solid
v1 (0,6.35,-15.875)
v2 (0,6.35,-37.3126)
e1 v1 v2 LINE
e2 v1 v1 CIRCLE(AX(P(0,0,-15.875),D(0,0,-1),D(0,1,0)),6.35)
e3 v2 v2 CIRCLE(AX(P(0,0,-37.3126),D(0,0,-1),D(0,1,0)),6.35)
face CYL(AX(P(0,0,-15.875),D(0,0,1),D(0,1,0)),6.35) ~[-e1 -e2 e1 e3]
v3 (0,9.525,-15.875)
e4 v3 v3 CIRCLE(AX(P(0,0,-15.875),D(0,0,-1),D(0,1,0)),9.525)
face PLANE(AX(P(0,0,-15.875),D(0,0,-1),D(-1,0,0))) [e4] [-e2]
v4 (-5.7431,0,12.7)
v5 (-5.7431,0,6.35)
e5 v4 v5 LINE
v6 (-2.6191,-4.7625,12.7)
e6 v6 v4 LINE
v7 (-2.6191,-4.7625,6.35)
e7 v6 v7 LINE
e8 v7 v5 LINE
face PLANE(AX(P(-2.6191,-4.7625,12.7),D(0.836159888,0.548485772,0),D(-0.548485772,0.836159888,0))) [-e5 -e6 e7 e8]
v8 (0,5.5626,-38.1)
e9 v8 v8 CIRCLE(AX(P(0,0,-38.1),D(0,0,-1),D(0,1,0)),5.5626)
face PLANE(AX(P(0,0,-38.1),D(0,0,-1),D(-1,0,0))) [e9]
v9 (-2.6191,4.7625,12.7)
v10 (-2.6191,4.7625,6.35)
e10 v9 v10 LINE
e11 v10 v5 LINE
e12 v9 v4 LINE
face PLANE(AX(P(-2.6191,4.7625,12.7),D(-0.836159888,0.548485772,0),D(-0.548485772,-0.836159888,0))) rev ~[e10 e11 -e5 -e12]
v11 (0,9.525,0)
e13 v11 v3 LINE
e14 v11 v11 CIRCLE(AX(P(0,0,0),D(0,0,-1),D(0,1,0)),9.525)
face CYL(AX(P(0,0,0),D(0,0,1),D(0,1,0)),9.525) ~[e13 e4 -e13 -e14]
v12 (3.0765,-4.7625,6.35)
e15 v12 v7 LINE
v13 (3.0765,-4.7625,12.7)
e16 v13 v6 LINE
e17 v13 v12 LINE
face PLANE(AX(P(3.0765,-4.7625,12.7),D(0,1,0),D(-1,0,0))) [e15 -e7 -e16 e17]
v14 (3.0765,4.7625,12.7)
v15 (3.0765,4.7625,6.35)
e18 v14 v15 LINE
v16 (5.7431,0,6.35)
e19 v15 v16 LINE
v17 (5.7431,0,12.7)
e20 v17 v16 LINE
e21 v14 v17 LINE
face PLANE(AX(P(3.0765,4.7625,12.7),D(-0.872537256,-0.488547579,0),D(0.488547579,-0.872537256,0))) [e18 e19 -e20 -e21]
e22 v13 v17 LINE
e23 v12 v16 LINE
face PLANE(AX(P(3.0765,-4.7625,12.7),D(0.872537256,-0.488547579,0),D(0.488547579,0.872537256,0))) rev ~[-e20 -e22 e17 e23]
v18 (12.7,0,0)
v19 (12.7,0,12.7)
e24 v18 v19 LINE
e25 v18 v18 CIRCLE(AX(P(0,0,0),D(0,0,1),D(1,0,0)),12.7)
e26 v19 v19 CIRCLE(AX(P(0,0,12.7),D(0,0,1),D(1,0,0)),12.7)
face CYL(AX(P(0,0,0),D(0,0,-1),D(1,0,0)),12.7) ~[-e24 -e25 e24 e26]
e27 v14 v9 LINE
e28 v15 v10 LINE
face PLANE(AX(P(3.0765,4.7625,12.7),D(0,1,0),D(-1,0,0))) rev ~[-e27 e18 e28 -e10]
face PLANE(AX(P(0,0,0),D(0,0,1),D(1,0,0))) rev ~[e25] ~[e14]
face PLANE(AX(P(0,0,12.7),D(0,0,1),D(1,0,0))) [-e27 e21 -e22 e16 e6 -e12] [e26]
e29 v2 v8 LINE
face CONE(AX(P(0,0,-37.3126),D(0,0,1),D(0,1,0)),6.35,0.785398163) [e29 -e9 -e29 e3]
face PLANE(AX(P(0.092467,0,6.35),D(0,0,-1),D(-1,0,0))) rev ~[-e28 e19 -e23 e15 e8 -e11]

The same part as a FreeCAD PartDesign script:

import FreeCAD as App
import Part
import Sketcher
from FreeCAD import Vector
Q = App.Units.Quantity


def edges_at(feature, points):
    """Names of the edges that pass closest to the given points."""
    edges = feature.Shape.Edges
    near = lambda p: min(range(len(edges)), key=lambda i: edges[i].distToShape(Part.Vertex(*p))[0])
    return sorted({f"Edge{near(p) + 1}" for p in points})

doc = App.newDocument("Part")
params = doc.addObject("Spreadsheet::Sheet", "Params")
for row, (alias, value) in enumerate([
    ("sketch1_diameter", "1 in"),
    ("pad1_length", "0.5 in"),
    ("sketch2_diameter", "0.75 in"),
    ("pad2_length", "0.625 in"),
    ("sketch3_diameter", "0.5 in"),
    ("pad3_length", "0.875 in"),
    ("pocket1_length", "0.25 in"),
    ("chamfer_size", "0.031 in"),
], start=1):
    params.set(f"A{row}", alias)
    params.set(f"B{row}", "=" + value)
    params.setAlias(f"B{row}", alias)

body = doc.addObject("PartDesign::Body", "Body")

sketch1 = body.newObject("Sketcher::SketchObject", "Sketch")
sketch1.AttachmentSupport = (doc.getObject("XY_Plane"), [""])
sketch1.MapMode = "FlatFace"
sketch1.addGeometry(Part.Circle(Vector(0, 0, 0), Vector(0, 0, 1), 13), False)
sketch1.addConstraint([
    Sketcher.Constraint("Coincident", 0, 3, -1, 1),
    Sketcher.Constraint("Diameter", 0, Q("1 in")),
])
sketch1.setExpression("Constraints[1]", "Params.sketch1_diameter")
pad1 = body.newObject("PartDesign::Pad", "Pad")
pad1.Profile = sketch1
pad1.setExpression("Length", "Params.pad1_length")

sketch2 = body.newObject("Sketcher::SketchObject", "Sketch001")
sketch2.AttachmentSupport = (doc.getObject("XY_Plane"), [""])
sketch2.MapMode = "FlatFace"
sketch2.addGeometry(Part.Circle(Vector(0, 0, 0), Vector(0, 0, 1), 10), False)
sketch2.addConstraint([
    Sketcher.Constraint("Coincident", 0, 3, -1, 1),
    Sketcher.Constraint("Diameter", 0, Q("0.75 in")),
])
sketch2.setExpression("Constraints[1]", "Params.sketch2_diameter")
pad2 = body.newObject("PartDesign::Pad", "Pad001")
pad2.Profile = sketch2
pad2.setExpression("Length", "Params.pad2_length")
pad2.Reversed = True

sketch3 = body.newObject("Sketcher::SketchObject", "Sketch002")
sketch3.AttachmentSupport = (doc.getObject("XY_Plane"), [""])
sketch3.MapMode = "FlatFace"
sketch3.AttachmentOffset = App.Placement(Vector(0, 0, -0.625 * 25.4), App.Rotation())
sketch3.addGeometry(Part.Circle(Vector(0, 0, 0), Vector(0, 0, 1), 6), False)
sketch3.addConstraint([
    Sketcher.Constraint("Coincident", 0, 3, -1, 1),
    Sketcher.Constraint("Diameter", 0, Q("0.5 in")),
])
sketch3.setExpression("Constraints[1]", "Params.sketch3_diameter")
pad3 = body.newObject("PartDesign::Pad", "Pad002")
pad3.Profile = sketch3
pad3.setExpression("Length", "Params.pad3_length")
pad3.Reversed = True

sketch4 = body.newObject("Sketcher::SketchObject", "Sketch003")
sketch4.AttachmentSupport = (doc.getObject("XY_Plane"), [""])
sketch4.MapMode = "FlatFace"
sketch4.AttachmentOffset = App.Placement(Vector(0, 0, 0.5 * 25.4), App.Rotation())
sketch4.addGeometry([
    Part.LineSegment(Vector(-6, 0, 0), Vector(-3, -5, 0)),
    Part.LineSegment(Vector(-3, -5, 0), Vector(3, -5, 0)),
    Part.LineSegment(Vector(3, -5, 0), Vector(6, 0, 0)),
    Part.LineSegment(Vector(6, 0, 0), Vector(3, 5, 0)),
    Part.LineSegment(Vector(3, 5, 0), Vector(-3, 5, 0)),
    Part.LineSegment(Vector(-3, 5, 0), Vector(-6, 0, 0)),
], False)
sketch4.addConstraint([
    Sketcher.Constraint("Coincident", 0, 2, 1, 1),
    Sketcher.Constraint("Coincident", 1, 2, 2, 1),
    Sketcher.Constraint("Coincident", 2, 2, 3, 1),
    Sketcher.Constraint("Coincident", 3, 2, 4, 1),
    Sketcher.Constraint("Coincident", 4, 2, 5, 1),
    Sketcher.Constraint("Coincident", 5, 2, 0, 1),
    Sketcher.Constraint("Horizontal", 1),
    Sketcher.Constraint("Horizontal", 4),
    Sketcher.Constraint("Symmetric", 2, 2, 5, 2, -1, 1),
    Sketcher.Constraint("Symmetric", 1, 2, 3, 2, -1),
    Sketcher.Constraint("PointOnObject", 2, 2, -1),
    Sketcher.Constraint("Vertical", 0, 2, 4, 2),
    Sketcher.Constraint("DistanceY", 0, 2, -1, 1, Q("0.1875 in")),
    Sketcher.Constraint("DistanceX", 5, 2, 0, 2, Q("0.123 in")),
    Sketcher.Constraint("Distance", 2, Q("0.2149 in")),
    Sketcher.Constraint("DistanceX", 1, 1, 1, 2, Q("5.6956 mm")),
])
pocket1 = body.newObject("PartDesign::Pocket", "Pocket")
pocket1.Profile = sketch4
pocket1.setExpression("Length", "Params.pocket1_length")
doc.recompute()

chamfer = body.newObject("PartDesign::Chamfer", "Chamfer")
chamfer.Base = (pocket1, edges_at(pocket1, [(0, -6.35, -38.1)]))
chamfer.setExpression("Size", "Params.chamfer_size")

doc.recompute()
